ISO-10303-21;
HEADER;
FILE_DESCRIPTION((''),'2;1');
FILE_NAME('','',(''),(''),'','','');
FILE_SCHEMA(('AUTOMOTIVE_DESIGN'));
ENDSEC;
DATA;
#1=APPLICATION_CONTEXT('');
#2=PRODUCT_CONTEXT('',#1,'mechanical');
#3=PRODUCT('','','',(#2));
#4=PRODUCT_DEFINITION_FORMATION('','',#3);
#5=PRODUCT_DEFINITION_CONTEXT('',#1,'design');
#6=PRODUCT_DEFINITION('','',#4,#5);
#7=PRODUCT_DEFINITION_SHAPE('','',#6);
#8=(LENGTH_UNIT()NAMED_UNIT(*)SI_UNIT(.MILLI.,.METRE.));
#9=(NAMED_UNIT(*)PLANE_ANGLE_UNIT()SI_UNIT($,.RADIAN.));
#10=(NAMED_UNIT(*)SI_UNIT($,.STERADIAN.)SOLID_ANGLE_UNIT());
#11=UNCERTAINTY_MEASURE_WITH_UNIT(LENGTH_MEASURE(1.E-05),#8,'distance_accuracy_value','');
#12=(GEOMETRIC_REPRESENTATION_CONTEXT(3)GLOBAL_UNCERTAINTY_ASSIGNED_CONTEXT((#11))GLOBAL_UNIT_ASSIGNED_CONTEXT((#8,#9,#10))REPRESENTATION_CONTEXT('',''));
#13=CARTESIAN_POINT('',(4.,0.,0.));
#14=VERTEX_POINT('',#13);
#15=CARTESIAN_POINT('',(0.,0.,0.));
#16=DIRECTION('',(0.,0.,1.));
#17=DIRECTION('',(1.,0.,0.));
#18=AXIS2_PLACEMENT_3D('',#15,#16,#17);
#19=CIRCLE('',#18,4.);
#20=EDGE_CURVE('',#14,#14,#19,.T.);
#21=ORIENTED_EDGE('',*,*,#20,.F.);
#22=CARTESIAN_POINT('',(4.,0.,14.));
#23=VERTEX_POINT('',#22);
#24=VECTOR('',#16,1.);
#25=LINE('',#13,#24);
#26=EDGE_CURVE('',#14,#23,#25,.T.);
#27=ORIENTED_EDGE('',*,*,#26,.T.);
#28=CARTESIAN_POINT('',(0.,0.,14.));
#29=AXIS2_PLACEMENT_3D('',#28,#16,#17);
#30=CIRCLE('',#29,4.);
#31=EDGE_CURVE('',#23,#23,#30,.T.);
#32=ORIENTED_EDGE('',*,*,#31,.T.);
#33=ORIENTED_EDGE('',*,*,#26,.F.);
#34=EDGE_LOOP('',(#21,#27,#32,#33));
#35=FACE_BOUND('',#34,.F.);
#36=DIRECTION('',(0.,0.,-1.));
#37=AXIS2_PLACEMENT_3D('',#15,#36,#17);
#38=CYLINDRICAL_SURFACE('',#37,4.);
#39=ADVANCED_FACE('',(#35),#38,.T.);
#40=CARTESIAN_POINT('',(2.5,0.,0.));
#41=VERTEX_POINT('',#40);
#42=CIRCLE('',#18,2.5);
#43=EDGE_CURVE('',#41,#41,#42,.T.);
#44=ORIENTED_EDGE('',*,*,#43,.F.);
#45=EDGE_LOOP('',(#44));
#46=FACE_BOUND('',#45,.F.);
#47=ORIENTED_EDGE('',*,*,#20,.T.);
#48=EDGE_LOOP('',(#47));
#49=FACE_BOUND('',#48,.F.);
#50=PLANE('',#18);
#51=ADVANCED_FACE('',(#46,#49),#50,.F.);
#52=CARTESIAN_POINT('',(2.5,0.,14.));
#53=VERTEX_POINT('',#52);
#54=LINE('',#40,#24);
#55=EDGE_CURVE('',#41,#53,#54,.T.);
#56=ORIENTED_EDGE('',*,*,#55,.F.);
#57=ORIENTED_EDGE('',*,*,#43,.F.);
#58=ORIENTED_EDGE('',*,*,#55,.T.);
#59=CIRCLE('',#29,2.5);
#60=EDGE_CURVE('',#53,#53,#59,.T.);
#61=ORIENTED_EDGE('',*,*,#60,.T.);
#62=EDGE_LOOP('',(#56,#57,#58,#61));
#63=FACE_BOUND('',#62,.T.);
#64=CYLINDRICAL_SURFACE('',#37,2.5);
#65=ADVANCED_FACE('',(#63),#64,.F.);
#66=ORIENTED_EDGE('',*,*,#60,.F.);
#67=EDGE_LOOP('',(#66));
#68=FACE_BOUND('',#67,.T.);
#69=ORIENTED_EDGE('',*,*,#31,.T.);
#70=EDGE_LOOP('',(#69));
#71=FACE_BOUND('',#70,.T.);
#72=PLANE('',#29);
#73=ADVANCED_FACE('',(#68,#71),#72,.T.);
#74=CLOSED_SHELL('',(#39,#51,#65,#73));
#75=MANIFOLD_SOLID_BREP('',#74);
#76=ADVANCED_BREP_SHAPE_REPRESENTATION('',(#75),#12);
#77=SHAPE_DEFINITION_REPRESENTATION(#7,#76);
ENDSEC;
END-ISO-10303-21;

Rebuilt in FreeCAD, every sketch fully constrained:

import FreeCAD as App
import Part
import Sketcher
Q = App.Units.Quantity

doc = App.newDocument("Part")
params = doc.addObject("Spreadsheet::Sheet", "Params")
for row, (alias, value) in enumerate([
    ("sketch1_diameter", "8 mm"),
    ("sketch1_diameter2", "5 mm"),
    ("pad1_length", "14 mm"),
], start=1):
    params.set(f"A{row}", alias)
    params.set(f"B{row}", "=" + value)
    params.setAlias(f"B{row}", alias)

body = doc.addObject("PartDesign::Body", "Body")

# Sketch on XY plane
sketch1 = body.newObject("Sketcher::SketchObject", "Sketch")
sketch1.AttachmentSupport = (doc.getObject("XY_Plane"), [""])
sketch1.MapMode = "FlatFace"
sketch1.addGeometry(Part.Circle(App.Vector(0, 0, 0), App.Vector(0, 0, 1), 4), False)
sketch1.addGeometry(Part.Circle(App.Vector(0, 0, 0), App.Vector(0, 0, 1), 2.5), False)
sketch1.addConstraint(Sketcher.Constraint("Coincident", 0, 3, -1, 1))
sketch1.addConstraint(Sketcher.Constraint("Coincident", 1, 3, -1, 1))
sketch1.addConstraint(Sketcher.Constraint("Diameter", 0, Q("8 mm")))
sketch1.addConstraint(Sketcher.Constraint("Diameter", 1, Q("5 mm")))
sketch1.setExpression("Constraints[2]", "Params.sketch1_diameter")
sketch1.setExpression("Constraints[3]", "Params.sketch1_diameter2")
pad1 = body.newObject("PartDesign::Pad", "Pad")
pad1.Profile = sketch1
pad1.setExpression("Length", "Params.pad1_length")

doc.recompute()
